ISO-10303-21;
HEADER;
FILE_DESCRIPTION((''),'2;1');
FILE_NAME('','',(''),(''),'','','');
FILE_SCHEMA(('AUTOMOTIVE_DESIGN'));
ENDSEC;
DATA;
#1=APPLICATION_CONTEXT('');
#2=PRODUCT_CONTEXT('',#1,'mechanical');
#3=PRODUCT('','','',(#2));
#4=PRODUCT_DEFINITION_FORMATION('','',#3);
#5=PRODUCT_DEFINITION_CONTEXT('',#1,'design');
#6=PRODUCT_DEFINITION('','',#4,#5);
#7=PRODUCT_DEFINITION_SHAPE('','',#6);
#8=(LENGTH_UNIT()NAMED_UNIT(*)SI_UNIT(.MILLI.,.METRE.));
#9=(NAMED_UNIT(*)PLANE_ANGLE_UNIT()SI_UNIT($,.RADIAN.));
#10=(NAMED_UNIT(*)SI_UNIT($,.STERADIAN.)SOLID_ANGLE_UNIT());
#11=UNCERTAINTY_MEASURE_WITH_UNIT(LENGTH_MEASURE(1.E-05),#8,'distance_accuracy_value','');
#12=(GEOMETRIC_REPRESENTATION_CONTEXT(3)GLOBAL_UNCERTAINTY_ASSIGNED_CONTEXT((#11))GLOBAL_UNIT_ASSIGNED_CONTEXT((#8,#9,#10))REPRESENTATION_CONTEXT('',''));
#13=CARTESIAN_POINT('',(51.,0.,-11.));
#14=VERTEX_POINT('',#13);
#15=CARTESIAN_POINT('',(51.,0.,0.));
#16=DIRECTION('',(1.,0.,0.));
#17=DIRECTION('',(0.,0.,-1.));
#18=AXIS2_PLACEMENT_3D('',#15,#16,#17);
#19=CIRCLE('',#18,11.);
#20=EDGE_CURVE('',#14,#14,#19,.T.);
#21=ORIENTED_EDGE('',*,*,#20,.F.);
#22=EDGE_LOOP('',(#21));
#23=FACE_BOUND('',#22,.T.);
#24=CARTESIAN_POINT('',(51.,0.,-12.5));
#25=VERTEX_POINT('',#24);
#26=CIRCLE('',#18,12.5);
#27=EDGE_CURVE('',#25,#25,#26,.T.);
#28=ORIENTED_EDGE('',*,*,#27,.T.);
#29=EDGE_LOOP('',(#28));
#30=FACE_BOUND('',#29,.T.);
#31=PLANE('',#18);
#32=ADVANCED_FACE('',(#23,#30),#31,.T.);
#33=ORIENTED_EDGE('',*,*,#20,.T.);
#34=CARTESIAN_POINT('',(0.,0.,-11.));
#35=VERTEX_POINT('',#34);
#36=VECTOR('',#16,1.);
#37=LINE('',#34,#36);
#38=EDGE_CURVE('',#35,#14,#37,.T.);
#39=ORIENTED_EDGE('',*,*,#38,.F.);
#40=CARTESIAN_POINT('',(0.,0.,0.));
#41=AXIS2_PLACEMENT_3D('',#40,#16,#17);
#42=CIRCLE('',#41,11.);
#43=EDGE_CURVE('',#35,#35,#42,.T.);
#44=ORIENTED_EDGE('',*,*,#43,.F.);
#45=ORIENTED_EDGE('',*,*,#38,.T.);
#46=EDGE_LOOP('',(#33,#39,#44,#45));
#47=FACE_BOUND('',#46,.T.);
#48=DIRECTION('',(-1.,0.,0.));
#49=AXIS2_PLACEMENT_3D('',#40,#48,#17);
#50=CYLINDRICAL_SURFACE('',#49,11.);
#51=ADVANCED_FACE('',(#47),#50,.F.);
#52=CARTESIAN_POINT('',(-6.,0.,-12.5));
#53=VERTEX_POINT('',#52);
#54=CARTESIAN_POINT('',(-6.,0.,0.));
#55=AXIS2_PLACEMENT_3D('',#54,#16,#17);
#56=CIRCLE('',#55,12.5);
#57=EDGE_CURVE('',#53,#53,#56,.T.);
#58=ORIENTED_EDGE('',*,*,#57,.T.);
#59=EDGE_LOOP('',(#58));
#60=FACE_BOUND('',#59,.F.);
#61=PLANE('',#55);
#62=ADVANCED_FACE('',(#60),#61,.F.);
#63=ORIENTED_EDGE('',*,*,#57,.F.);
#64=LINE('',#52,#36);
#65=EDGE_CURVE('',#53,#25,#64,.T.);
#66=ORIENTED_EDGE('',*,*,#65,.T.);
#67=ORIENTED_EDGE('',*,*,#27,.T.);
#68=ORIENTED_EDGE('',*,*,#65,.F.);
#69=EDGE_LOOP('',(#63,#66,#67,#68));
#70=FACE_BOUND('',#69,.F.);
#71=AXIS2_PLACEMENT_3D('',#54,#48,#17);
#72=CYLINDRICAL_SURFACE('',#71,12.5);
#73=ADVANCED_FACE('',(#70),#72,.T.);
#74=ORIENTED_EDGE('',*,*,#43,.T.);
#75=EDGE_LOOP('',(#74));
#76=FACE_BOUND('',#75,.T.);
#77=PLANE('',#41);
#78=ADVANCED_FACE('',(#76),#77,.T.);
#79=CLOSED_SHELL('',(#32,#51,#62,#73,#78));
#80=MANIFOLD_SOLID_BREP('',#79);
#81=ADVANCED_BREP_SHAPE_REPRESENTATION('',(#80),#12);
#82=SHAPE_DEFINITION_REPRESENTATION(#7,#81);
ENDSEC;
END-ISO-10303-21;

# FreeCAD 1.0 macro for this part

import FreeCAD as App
import Part
import Sketcher

V = App.Vector
Q = App.Units.Quantity

doc = App.newDocument("Part")
params = doc.addObject("Spreadsheet::Sheet", "Params")
for row, (alias, value) in enumerate([
    ("sketch1_diameter", "22 mm"),
    ("pad1_length", "51 mm"),
    ("sketch2_diameter", "25 mm"),
    ("pad2_length", "57 mm"),
], start=1):
    params.set(f"A{row}", alias)
    params.set(f"B{row}", "=" + value)
    params.setAlias(f"B{row}", alias)

body = doc.addObject("PartDesign::Body", "Body")

sketch1 = doc.addObject("Sketcher::SketchObject", "Sketch")
body.addObject(sketch1)
sketch1.AttachmentSupport = (doc.XY_Plane, [""])
sketch1.MapMode = "FlatFace"
sketch1.addGeometry(Part.Circle(V(0, 0, 0), V(0, 0, 1), 11), False)
sketch1.addConstraint(Sketcher.Constraint("Coincident", 0, 3, -1, 1))
sketch1.addConstraint(Sketcher.Constraint("Diameter", 0, Q("22 mm")))
sketch1.setExpression("Constraints[1]", "Params.sketch1_diameter")
pad1 = doc.addObject("PartDesign::Pad", "Pad")
body.addObject(pad1)
pad1.Profile = sketch1
pad1.setExpression("Length", "Params.pad1_length")
body2 = doc.addObject("PartDesign::Body", "Body001")
doc.recompute()

body.Placement = App.Placement(V(0, 0, 0), App.Rotation(V(0, 1, 0), 90))
boolean = doc.addObject("PartDesign::Boolean", "Boolean")
body2.addObject(boolean)
boolean.Type = "Fuse"
boolean.addObjects([body])
body3 = doc.addObject("PartDesign::Body", "Body002")

sketch2 = doc.addObject("Sketcher::SketchObject", "Sketch001")
body3.addObject(sketch2)
sketch2.AttachmentSupport = (doc.getObject("XY_Plane002"), [""])
sketch2.MapMode = "FlatFace"
sketch2.addGeometry(Part.Circle(V(0, 0, 0), V(0, 0, 1), 12), False)
sketch2.addConstraint(Sketcher.Constraint("Coincident", 0, 3, -1, 1))
sketch2.addConstraint(Sketcher.Constraint("Diameter", 0, Q("25 mm")))
sketch2.setExpression("Constraints[1]", "Params.sketch2_diameter")
pad2 = doc.addObject("PartDesign::Pad", "Pad001")
body3.addObject(pad2)
pad2.Profile = sketch2
pad2.setExpression("Length", "Params.pad2_length")
body4 = doc.addObject("PartDesign::Body", "Body003")
doc.recompute()

body3.Placement = App.Placement(V(0, 0, 0), App.Rotation(V(0, 1, 0), 90))
boolean2 = doc.addObject("PartDesign::Boolean", "Boolean001")
body4.addObject(boolean2)
boolean2.Type = "Fuse"
boolean2.addObjects([body3])
body5 = doc.addObject("PartDesign::Body", "Body004")
doc.recompute()

body4.Placement = App.Placement(V(-6, 0, 0), App.Rotation(V(0, 0, 1), 0))
boolean3 = doc.addObject("PartDesign::Boolean", "Boolean002")
body5.addObject(boolean3)
boolean3.Type = "Fuse"
boolean3.addObjects([body4])
doc.recompute()

boolean4 = doc.addObject("PartDesign::Boolean", "Boolean003")
body5.addObject(boolean4)
boolean4.Type = "Cut"
boolean4.addObjects([body2])

doc.recompute()
